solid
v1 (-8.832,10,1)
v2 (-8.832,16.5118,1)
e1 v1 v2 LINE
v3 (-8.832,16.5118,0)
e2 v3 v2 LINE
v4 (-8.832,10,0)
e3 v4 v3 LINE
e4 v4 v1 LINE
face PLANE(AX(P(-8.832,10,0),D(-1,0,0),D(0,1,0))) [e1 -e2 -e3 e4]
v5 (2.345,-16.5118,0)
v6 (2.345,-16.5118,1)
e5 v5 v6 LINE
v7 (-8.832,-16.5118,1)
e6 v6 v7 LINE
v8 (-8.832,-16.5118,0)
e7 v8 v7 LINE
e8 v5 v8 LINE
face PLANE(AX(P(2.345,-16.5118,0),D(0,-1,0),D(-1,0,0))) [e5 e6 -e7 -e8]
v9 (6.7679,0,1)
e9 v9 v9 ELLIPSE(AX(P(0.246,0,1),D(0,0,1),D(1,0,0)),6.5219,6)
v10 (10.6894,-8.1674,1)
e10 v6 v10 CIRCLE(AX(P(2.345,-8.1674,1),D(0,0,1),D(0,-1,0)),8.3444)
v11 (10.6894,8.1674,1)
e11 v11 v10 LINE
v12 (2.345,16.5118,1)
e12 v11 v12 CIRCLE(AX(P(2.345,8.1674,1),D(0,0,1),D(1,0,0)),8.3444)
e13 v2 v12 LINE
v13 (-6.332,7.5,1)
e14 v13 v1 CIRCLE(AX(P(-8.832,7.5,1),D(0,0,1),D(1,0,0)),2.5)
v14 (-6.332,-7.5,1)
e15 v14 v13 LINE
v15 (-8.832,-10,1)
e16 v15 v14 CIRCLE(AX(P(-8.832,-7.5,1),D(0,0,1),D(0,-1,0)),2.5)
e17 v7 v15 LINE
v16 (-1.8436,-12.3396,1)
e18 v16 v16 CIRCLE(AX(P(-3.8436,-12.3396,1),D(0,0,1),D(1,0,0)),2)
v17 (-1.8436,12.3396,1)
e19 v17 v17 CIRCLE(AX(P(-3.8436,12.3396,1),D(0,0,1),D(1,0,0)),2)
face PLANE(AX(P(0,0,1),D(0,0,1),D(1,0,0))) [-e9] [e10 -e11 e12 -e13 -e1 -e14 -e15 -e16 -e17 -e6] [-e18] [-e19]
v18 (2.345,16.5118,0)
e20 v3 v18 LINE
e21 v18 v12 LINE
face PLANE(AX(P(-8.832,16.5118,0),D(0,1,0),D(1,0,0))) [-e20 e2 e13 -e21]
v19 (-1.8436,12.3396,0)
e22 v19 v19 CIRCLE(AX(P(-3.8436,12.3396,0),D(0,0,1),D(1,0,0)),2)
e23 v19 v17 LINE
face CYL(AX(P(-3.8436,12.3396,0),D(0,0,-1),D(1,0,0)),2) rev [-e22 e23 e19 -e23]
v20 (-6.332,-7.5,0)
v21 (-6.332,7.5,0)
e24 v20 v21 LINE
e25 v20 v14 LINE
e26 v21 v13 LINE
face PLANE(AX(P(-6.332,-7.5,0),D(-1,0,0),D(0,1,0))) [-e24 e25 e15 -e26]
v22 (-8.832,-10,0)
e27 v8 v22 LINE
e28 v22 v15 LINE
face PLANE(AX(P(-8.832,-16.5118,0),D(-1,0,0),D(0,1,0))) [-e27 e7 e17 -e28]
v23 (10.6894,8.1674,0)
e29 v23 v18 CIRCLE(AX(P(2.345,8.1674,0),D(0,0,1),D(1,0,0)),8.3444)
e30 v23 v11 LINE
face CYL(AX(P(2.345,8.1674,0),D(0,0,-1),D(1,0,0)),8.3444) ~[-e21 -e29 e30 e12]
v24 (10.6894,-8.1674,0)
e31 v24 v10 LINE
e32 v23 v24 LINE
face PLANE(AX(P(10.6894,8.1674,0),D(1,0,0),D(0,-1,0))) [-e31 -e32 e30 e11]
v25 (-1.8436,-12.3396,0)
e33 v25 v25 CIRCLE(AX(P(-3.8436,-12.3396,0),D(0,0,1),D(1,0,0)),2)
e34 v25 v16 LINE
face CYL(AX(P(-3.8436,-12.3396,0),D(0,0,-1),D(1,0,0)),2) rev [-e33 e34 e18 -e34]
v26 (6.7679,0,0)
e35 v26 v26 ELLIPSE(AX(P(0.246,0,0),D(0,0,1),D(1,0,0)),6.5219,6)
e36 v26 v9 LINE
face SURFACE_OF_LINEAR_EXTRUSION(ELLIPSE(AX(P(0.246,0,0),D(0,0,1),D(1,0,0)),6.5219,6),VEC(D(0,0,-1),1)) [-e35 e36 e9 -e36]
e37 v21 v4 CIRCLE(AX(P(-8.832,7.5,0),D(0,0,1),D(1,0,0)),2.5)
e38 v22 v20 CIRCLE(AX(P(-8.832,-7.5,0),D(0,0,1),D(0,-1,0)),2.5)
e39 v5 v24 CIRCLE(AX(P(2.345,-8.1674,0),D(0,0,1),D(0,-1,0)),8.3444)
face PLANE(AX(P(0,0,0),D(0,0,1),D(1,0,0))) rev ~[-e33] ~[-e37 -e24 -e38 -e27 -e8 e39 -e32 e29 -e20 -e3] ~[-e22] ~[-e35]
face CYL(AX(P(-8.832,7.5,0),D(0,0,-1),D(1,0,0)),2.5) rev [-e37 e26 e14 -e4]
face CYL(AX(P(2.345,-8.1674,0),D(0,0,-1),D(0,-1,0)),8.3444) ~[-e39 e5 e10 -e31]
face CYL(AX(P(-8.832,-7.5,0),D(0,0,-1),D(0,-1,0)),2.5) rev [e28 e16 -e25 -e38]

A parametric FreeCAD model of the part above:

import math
import FreeCAD as App
import Part
import Sketcher
from FreeCAD import Vector

doc = App.newDocument("Part")
params = doc.addObject("Spreadsheet::Sheet", "Params")
for row, (alias, value) in enumerate([
    ("sketch1_diameter", "4 mm"),
    ("sketch1_radius", "2.5 mm"),
    ("sketch1_height", "15 mm"),
    ("pad1_length", "1 mm"),
], start=1):
    params.set(f"A{row}", alias)
    params.set(f"B{row}", "=" + value)
    params.setAlias(f"B{row}", alias)

body = doc.addObject("PartDesign::Body", "Body")

# Sketch on XY plane
sketch1 = body.newObject("Sketcher::SketchObject", "Sketch")
sketch1.AttachmentSupport = (doc.getObject("XY_Plane"), [""])
sketch1.MapMode = "FlatFace"
sketch1.addGeometry([
    Part.ArcOfCircle(Part.Circle(Vector(-8.832, 7.5, 0), Vector(0, 0, 1), 2.5), math.radians(0), math.radians(90)),  # 0
    Part.LineSegment(Vector(-6.332, 7.5, 0), Vector(-6.332, -7.5, 0)),  # 1
    Part.ArcOfCircle(Part.Circle(Vector(-8.832, -7.5, 0), Vector(0, 0, 1), 2.5), math.radians(-90), math.radians(0)),  # 2
    Part.LineSegment(Vector(-8.832, -10, 0), Vector(-8.832, -16.5118, 0)),  # 3
    Part.LineSegment(Vector(-8.832, -16.5118, 0), Vector(2.345, -16.5118, 0)),  # 4
    Part.ArcOfCircle(Part.Circle(Vector(2.345, -8.1674, 0), Vector(0, 0, 1), 8.3444), math.radians(-90), math.radians(0)),  # 5
    Part.LineSegment(Vector(10.6894, -8.1674, 0), Vector(10.6894, 8.1674, 0)),  # 6
    Part.ArcOfCircle(Part.Circle(Vector(2.345, 8.1674, 0), Vector(0, 0, 1), 8.3444), math.radians(0), math.radians(90)),  # 7
    Part.LineSegment(Vector(2.345, 16.5118, 0), Vector(-8.832, 16.5118, 0)),  # 8
    Part.LineSegment(Vector(-8.832, 16.5118, 0), Vector(-8.832, 10, 0)),  # 9
    Part.Circle(Vector(-3.8436, -12.3396, 0), Vector(0, 0, 1), 2),  # 10
    Part.Ellipse(Vector(6.7679, 0, 0), Vector(0.246, 6, 0), Vector(0.246, 0, 0)),  # 11
    Part.Circle(Vector(-3.8436, 12.3396, 0), Vector(0, 0, 1), 2),  # 12
], False)
sketch1.addConstraint([
    Sketcher.Constraint("Block", 11),
    Sketcher.Constraint("Tangent", 0, 1, 1, 1),
    Sketcher.Constraint("Tangent", 1, 2, 2, 2),
    Sketcher.Constraint("Coincident", 2, 1, 3, 1),
    Sketcher.Constraint("Coincident", 3, 2, 4, 1),
    Sketcher.Constraint("Tangent", 4, 2, 5, 1),
    Sketcher.Constraint("Tangent", 5, 2, 6, 1),
    Sketcher.Constraint("Tangent", 6, 2, 7, 1),
    Sketcher.Constraint("Tangent", 7, 2, 8, 1),
    Sketcher.Constraint("Coincident", 8, 2, 9, 1),
    Sketcher.Constraint("Coincident", 9, 2, 0, 2),
    Sketcher.Constraint("Vertical", 1),
    Sketcher.Constraint("Vertical", 3),
    Sketcher.Constraint("Horizontal", 4),
    Sketcher.Constraint("Vertical", 6),
    Sketcher.Constraint("Horizontal", 8),
    Sketcher.Constraint("Vertical", 9),
    Sketcher.Constraint("Equal", 0, 2),
    Sketcher.Constraint("Equal", 5, 7),
    Sketcher.Constraint("Equal", 10, 12),
    Sketcher.Constraint("Symmetric", 10, 3, 12, 3, -1),
    Sketcher.Constraint("Symmetric", 3, 2, 8, 2, -1),
    Sketcher.Constraint("Vertical", 0, 3, 2, 1),
    Sketcher.Constraint("Equal", 3, 9),
    Sketcher.Constraint("Diameter", 10, 4.0),
    Sketcher.Constraint("Radius", 0, 2.5),
    Sketcher.Constraint("DistanceY", 1, 2, 1, 1, 15.0),
    Sketcher.Constraint("Radius", 5, 8.3444),
    Sketcher.Constraint("DistanceX", 4, 1, 4, 2, 11.177),
    Sketcher.Constraint("DistanceY", 3, 2, 3, 1, 6.5118),
    Sketcher.Constraint("DistanceX", 0, 3, -1, 1, 8.832),
    Sketcher.Constraint("DistanceY", 10, 3, 7, 3, 20.507),
    Sketcher.Constraint("DistanceX", 10, 3, 5, 2, 14.533),
])
sketch1.setExpression("Constraints[24]", "Params.sketch1_diameter")
sketch1.setExpression("Constraints[25]", "Params.sketch1_radius")
sketch1.setExpression("Constraints[26]", "Params.sketch1_height")
pad1 = body.newObject("PartDesign::Pad", "Pad")
pad1.Profile = sketch1
pad1.setExpression("Length", "Params.pad1_length")

doc.recompute()
